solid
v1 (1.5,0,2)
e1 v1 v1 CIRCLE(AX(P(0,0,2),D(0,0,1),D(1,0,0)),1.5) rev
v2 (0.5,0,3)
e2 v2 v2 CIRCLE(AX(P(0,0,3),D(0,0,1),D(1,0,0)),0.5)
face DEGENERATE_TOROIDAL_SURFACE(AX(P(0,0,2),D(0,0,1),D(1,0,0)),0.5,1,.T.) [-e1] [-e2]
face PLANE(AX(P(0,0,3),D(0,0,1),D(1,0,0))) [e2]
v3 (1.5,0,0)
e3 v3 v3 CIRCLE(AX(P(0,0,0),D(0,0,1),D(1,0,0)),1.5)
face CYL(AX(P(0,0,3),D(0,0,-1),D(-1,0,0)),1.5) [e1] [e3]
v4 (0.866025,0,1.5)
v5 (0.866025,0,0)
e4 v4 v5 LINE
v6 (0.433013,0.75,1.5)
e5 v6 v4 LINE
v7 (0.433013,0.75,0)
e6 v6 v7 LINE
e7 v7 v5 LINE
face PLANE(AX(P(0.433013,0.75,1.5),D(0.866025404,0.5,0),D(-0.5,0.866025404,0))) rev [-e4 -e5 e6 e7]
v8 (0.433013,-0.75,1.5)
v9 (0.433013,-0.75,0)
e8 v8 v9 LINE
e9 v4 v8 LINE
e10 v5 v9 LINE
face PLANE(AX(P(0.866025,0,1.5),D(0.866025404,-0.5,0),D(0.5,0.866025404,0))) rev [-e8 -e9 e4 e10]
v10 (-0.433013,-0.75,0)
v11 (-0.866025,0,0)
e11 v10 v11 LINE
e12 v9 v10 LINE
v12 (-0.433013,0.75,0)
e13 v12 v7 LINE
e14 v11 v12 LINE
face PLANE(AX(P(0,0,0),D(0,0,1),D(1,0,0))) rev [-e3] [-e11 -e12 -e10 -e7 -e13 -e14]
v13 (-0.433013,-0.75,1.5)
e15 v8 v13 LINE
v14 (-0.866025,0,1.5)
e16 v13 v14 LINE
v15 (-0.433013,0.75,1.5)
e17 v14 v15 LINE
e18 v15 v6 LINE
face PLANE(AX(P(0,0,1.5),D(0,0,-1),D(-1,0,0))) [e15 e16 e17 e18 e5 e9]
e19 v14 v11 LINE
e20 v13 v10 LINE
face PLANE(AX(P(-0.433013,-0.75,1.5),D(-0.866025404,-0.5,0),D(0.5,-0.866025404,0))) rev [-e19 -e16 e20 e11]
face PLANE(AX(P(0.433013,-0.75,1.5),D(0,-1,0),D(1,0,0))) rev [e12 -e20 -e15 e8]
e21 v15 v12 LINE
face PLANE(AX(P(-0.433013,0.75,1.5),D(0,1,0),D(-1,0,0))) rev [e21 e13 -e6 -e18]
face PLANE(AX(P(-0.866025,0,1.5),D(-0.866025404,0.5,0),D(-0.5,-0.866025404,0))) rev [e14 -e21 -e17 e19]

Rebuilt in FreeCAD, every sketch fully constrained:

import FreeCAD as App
import Part
import Sketcher

V = App.Vector
Q = App.Units.Quantity


def edges_at(feature, points):
    """Names of the edges that pass closest to the given points."""
    edges = feature.Shape.Edges
    near = lambda p: min(range(len(edges)), key=lambda i: edges[i].distToShape(Part.Vertex(*p))[0])
    return sorted({f"Edge{near(p) + 1}" for p in points})


def add_polygon(sketch, points):
    """Adds a closed chain of lines whose ends are joined by coincident constraints."""
    first, n = sketch.GeometryCount, len(points)
    for a, b in zip(points, points[1:] + points[:1]):
        sketch.addGeometry(Part.LineSegment(App.Vector(*a, 0), App.Vector(*b, 0)), False)
    for i in range(n):
        sketch.addConstraint(Sketcher.Constraint("Coincident", first + i, 2, first + (i + 1) % n, 1))

doc = App.newDocument("Part")
params = doc.addObject("Spreadsheet::Sheet", "Params")
for row, (alias, value) in enumerate([
    ("sketch1_diameter", "3 mm"),
    ("pad1_length", "3 mm"),
    ("fillet_radius", "1 mm"),
    ("pocket1_length", "1.5 mm"),
], start=1):
    params.set(f"A{row}", alias)
    params.set(f"B{row}", "=" + value)
    params.setAlias(f"B{row}", alias)

body = doc.addObject("PartDesign::Body", "Body")

sketch1 = body.newObject("Sketcher::SketchObject", "Sketch")
sketch1.AttachmentSupport = (doc.getObject("XY_Plane"), [""])
sketch1.MapMode = "FlatFace"
sketch1.addGeometry(Part.Circle(V(0, 0, 0), V(0, 0, 1), 1.5), False)
sketch1.addConstraint([
    Sketcher.Constraint("Coincident", 0, 3, -1, 1),
    Sketcher.Constraint("Diameter", 0, 3.0),
])
sketch1.setExpression("Constraints[1]", "Params.sketch1_diameter")
pad1 = body.newObject("PartDesign::Pad", "Pad")
pad1.Profile = sketch1
pad1.setExpression("Length", "Params.pad1_length")
doc.recompute()

fillet = body.newObject("PartDesign::Fillet", "Fillet")
fillet.Base = (pad1, edges_at(pad1, [(-1.5, 0, 3)]))
fillet.setExpression("Radius", "Params.fillet_radius")

sketch2 = body.newObject("Sketcher::SketchObject", "Sketch001")
sketch2.AttachmentSupport = (doc.getObject("XY_Plane"), [""])
sketch2.MapMode = "FlatFace"
add_polygon(sketch2, [(-0.866025, 0), (-0.433013, 0.75), (0.433013, 0.75), (0.866025, 0), (0.433013, -0.75), (-0.433013, -0.75)])
sketch2.addConstraint([
    Sketcher.Constraint("Horizontal", 1),
    Sketcher.Constraint("Horizontal", 4),
    Sketcher.Constraint("Symmetric", 0, 2, 3, 2, -1, 1),
    Sketcher.Constraint("Symmetric", 2, 2, 5, 2, -1, 1),
    Sketcher.Constraint("PointOnObject", 2, 2, -1),
    Sketcher.Constraint("Parallel", 2, 5),
    Sketcher.Constraint("Vertical", 1, 2, 3, 2),
    Sketcher.Constraint("Angle", 0, Q("60 deg")),
    Sketcher.Constraint("DistanceY", 3, 2, 1, 2, 1.5),
    Sketcher.Constraint("DistanceX", 1, 1, 1, 2, 0.866025),
])
pocket1 = body.newObject("PartDesign::Pocket", "Pocket")
pocket1.Profile = sketch2
pocket1.setExpression("Length", "Params.pocket1_length")
pocket1.Reversed = True

doc.recompute()
